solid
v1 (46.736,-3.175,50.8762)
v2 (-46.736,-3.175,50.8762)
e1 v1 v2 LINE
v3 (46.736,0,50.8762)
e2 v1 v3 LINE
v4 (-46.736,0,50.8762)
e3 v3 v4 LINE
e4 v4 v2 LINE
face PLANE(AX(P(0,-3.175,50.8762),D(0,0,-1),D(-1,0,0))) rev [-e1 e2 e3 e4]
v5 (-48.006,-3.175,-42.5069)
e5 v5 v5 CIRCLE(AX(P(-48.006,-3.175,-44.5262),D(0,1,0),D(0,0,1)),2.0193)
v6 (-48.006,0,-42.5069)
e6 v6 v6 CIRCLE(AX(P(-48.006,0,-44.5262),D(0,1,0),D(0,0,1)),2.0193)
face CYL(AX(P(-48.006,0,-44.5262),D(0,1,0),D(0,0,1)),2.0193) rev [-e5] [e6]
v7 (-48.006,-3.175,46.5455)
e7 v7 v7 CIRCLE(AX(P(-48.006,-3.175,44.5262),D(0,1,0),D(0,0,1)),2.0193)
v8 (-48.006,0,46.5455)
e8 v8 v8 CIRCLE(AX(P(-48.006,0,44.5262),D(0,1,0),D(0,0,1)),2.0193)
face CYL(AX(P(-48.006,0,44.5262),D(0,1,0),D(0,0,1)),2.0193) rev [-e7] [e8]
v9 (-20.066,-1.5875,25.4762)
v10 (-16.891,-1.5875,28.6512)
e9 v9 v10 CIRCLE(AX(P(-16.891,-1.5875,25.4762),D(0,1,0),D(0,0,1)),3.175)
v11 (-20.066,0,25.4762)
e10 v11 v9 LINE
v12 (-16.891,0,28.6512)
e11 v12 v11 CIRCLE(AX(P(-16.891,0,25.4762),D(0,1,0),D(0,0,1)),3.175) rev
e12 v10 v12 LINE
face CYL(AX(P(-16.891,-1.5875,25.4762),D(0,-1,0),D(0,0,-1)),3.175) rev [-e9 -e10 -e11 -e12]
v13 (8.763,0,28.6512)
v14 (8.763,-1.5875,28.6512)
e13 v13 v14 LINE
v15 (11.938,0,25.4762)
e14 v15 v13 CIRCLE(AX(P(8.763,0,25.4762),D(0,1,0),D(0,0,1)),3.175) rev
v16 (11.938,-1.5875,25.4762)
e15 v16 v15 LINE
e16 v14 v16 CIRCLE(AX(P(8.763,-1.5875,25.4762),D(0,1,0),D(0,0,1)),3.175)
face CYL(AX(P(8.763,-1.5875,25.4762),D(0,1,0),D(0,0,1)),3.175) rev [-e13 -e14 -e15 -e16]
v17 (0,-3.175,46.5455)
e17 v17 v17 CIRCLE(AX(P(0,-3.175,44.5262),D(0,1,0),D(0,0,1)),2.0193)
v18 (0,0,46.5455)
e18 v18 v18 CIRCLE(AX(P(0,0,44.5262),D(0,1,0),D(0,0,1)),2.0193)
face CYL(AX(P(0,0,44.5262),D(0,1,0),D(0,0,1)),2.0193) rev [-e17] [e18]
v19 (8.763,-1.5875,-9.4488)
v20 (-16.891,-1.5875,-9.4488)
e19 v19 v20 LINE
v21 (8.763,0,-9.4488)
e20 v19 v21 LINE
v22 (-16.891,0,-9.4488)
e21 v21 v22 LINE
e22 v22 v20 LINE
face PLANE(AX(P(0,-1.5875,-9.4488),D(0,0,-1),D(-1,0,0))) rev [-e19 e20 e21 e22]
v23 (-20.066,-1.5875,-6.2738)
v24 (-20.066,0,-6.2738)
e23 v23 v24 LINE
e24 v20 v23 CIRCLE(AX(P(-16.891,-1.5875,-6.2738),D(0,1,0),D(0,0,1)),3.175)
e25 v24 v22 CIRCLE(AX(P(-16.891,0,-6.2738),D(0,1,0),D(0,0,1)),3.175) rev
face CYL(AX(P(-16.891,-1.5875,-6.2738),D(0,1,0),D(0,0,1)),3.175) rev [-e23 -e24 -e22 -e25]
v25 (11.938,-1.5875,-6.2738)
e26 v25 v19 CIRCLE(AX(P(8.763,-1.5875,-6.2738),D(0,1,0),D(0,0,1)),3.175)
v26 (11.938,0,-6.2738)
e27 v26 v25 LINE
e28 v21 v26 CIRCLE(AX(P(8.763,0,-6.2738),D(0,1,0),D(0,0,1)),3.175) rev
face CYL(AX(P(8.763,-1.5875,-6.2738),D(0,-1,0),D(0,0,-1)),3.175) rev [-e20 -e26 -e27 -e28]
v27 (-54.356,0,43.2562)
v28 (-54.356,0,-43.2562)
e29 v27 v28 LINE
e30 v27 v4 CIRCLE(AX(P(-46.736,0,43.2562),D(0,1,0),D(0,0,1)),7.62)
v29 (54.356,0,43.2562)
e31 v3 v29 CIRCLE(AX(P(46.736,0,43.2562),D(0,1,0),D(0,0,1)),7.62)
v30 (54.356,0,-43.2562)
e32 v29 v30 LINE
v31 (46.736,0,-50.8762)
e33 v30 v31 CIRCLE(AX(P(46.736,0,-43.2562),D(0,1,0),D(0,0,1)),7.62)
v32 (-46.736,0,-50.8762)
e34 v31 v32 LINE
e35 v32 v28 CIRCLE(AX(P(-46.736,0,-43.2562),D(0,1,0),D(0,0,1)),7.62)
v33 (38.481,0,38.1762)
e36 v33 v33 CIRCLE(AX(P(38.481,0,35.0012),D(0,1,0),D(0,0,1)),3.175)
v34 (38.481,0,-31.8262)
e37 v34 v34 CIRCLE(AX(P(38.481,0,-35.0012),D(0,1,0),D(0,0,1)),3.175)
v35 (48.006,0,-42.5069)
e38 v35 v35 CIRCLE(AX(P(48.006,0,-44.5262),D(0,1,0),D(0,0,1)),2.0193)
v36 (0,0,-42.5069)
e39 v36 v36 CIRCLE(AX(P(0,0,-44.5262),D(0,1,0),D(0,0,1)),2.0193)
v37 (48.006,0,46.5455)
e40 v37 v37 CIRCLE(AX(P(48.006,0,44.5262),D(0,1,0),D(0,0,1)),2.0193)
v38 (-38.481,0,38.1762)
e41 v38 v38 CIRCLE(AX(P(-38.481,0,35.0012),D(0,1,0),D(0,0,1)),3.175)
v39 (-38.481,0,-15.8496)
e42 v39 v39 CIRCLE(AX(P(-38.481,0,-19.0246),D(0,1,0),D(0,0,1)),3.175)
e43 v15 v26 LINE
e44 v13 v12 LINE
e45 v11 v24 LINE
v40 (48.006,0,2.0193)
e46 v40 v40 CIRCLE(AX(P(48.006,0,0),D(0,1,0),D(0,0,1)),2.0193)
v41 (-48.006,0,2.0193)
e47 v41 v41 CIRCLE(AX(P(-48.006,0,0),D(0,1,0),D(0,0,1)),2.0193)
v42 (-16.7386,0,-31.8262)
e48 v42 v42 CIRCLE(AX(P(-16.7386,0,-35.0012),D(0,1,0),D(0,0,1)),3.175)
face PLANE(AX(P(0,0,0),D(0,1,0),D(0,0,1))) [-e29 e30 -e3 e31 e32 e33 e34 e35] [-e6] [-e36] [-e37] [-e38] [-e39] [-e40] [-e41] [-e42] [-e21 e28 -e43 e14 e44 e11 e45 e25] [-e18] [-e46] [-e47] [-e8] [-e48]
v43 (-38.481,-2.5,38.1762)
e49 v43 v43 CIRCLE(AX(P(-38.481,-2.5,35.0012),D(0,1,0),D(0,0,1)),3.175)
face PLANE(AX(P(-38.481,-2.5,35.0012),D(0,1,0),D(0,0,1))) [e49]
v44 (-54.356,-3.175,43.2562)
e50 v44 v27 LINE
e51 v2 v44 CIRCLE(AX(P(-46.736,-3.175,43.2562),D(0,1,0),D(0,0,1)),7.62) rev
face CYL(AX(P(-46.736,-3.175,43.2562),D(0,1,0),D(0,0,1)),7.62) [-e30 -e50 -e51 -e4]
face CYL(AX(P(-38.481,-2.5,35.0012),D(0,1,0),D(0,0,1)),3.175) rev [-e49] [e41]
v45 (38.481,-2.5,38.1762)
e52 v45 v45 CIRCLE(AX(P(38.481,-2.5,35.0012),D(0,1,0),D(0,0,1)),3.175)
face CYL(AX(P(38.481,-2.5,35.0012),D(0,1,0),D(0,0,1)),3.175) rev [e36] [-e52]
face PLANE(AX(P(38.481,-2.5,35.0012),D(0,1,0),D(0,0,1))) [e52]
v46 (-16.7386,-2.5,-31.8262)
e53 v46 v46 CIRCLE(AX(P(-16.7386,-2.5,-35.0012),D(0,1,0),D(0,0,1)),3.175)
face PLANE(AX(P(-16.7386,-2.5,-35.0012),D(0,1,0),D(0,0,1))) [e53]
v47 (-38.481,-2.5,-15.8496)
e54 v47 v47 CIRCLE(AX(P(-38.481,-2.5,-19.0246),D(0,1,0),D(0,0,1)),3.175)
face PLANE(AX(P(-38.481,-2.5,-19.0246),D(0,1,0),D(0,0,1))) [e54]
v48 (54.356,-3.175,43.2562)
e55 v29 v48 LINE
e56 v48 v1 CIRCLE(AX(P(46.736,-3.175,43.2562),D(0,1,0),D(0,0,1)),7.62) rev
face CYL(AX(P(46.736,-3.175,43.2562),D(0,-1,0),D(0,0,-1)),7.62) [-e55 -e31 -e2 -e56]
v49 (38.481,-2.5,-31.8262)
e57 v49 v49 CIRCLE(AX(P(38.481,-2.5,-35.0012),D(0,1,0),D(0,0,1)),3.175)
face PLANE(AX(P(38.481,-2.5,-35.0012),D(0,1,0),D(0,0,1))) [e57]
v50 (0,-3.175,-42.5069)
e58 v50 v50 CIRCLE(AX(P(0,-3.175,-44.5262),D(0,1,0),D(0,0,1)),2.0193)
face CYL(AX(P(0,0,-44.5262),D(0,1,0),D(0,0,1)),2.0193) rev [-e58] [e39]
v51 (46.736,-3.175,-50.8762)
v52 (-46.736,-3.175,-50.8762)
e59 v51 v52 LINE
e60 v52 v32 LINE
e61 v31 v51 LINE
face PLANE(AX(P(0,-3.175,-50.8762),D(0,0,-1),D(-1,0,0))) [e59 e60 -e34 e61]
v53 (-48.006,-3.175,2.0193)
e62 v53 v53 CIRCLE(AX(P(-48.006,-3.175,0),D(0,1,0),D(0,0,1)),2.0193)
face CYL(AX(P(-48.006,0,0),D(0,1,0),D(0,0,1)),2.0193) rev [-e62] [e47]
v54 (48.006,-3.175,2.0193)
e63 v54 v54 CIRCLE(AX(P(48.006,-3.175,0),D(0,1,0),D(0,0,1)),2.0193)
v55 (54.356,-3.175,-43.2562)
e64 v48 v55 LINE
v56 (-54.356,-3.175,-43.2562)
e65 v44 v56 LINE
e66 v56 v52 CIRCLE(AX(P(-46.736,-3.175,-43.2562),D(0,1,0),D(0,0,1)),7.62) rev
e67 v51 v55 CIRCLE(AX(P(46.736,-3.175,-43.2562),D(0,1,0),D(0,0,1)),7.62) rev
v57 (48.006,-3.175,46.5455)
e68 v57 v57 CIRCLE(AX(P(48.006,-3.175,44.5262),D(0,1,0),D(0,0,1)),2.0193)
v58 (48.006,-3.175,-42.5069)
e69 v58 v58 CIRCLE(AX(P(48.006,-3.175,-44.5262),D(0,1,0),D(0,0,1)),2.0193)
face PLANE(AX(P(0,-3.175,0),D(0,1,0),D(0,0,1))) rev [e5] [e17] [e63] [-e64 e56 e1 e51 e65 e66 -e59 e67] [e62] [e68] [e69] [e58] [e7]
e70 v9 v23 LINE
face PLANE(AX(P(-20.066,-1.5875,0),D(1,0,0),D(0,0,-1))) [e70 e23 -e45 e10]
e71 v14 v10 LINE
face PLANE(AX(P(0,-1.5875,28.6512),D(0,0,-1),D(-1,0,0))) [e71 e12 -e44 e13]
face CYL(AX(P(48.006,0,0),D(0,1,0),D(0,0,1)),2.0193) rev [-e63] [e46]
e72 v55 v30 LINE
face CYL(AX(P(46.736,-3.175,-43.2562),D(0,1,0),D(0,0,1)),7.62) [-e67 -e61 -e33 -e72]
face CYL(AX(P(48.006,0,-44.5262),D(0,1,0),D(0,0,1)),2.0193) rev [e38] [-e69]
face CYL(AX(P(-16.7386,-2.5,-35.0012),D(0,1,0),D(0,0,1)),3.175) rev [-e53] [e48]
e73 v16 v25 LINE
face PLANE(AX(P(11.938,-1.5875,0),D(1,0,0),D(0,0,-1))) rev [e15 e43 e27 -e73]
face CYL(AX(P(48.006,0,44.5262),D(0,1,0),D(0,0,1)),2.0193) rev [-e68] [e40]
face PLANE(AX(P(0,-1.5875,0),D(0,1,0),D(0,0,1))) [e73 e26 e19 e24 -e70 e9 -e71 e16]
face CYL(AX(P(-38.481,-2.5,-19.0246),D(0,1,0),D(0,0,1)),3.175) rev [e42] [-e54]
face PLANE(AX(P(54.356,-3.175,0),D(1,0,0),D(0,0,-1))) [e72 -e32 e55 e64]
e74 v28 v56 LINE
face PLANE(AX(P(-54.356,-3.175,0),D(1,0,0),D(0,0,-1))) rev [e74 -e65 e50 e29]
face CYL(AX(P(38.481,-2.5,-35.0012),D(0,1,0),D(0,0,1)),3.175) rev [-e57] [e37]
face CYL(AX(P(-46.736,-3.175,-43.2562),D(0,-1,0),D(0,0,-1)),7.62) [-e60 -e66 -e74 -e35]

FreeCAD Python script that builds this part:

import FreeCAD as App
import Part
import Sketcher

V = App.Vector
Q = App.Units.Quantity


def edges_at(feature, points):
    """Names of the edges that pass closest to the given points."""
    edges = feature.Shape.Edges
    near = lambda p: min(range(len(edges)), key=lambda i: edges[i].distToShape(Part.Vertex(*p))[0])
    return sorted({f"Edge{near(p) + 1}" for p in points})

doc = App.newDocument("Part")
body = doc.addObject("PartDesign::Body", "Body")

sketch1 = body.newObject("Sketcher::SketchObject", "Sketch")
sketch1.AttachmentSupport = (doc.getObject("XZ_Plane"), [""])
sketch1.MapMode = "FlatFace"
sketch1.addGeometry([
    Part.LineSegment(V(-54, -51, 0), V(-54, 51, 0)),
    Part.LineSegment(V(-54, 51, 0), V(54, 51, 0)),
    Part.LineSegment(V(54, 51, 0), V(54, -51, 0)),
    Part.LineSegment(V(54, -51, 0), V(-54, -51, 0)),
], False)
sketch1.addConstraint([
    Sketcher.Constraint("Coincident", 0, 2, 1, 1),
    Sketcher.Constraint("Coincident", 1, 2, 2, 1),
    Sketcher.Constraint("Coincident", 2, 2, 3, 1),
    Sketcher.Constraint("Coincident", 3, 2, 0, 1),
    Sketcher.Constraint("Vertical", 0),
    Sketcher.Constraint("Horizontal", 1),
    Sketcher.Constraint("Vertical", 2),
    Sketcher.Constraint("Horizontal", 3),
    Sketcher.Constraint("Symmetric", 0, 2, 2, 2, -1, 1),
    Sketcher.Constraint("DistanceX", 1, 1, 1, 2, Q("4.28 in")),
    Sketcher.Constraint("DistanceY", 0, 1, 0, 2, Q("4.006 in")),
])
pad1 = body.newObject("PartDesign::Pad", "Pad")
pad1.Profile = sketch1
pad1.Length = Q("0.125 in")

sketch2 = body.newObject("Sketcher::SketchObject", "Sketch001")
sketch2.AttachmentSupport = (doc.getObject("XZ_Plane"), [""])
sketch2.MapMode = "FlatFace"
sketch2.addGeometry([
    Part.LineSegment(V(-20, -9, 0), V(-20, 29, 0)),
    Part.LineSegment(V(-20, 29, 0), V(12, 29, 0)),
    Part.LineSegment(V(12, 29, 0), V(12, -9, 0)),
    Part.LineSegment(V(12, -9, 0), V(-20, -9, 0)),
], False)
sketch2.addConstraint([
    Sketcher.Constraint("Coincident", 0, 2, 1, 1),
    Sketcher.Constraint("Coincident", 1, 2, 2, 1),
    Sketcher.Constraint("Coincident", 2, 2, 3, 1),
    Sketcher.Constraint("Coincident", 3, 2, 0, 1),
    Sketcher.Constraint("Vertical", 0),
    Sketcher.Constraint("Horizontal", 1),
    Sketcher.Constraint("Vertical", 2),
    Sketcher.Constraint("Horizontal", 3),
    Sketcher.Constraint("DistanceY", 0, 1, 0, 2, Q("1.5 in")),
    Sketcher.Constraint("DistanceX", 1, 1, 1, 2, Q("1.26 in")),
    Sketcher.Constraint("DistanceX", 0, 2, -1, 1, Q("0.79 in")),
    Sketcher.Constraint("DistanceY", -1, 1, 0, 2, Q("1.128 in")),
])
pocket1 = body.newObject("PartDesign::Pocket", "Pocket")
pocket1.Profile = sketch2
pocket1.Length = Q("0.0625 in")
pocket1.Reversed = True

sketch3 = body.newObject("Sketcher::SketchObject", "Sketch002")
sketch3.AttachmentSupport = (doc.getObject("XZ_Plane"), [""])
sketch3.MapMode = "FlatFace"
sketch3.addGeometry([
    Part.Circle(V(-38.5, -19, 0), V(0, 0, 1), 3.2),
    Part.Circle(V(-16.7, -35, 0), V(0, 0, 1), 3.2),
    Part.Circle(V(38.5, -35, 0), V(0, 0, 1), 3.2),
    Part.Circle(V(38.5, 35, 0), V(0, 0, 1), 3.2),
    Part.Circle(V(-38.5, 35, 0), V(0, 0, 1), 3.2),
], False)
sketch3.addConstraint([
    Sketcher.Constraint("Equal", 0, 1),
    Sketcher.Constraint("Equal", 1, 2),
    Sketcher.Constraint("Equal", 2, 3),
    Sketcher.Constraint("Equal", 3, 4),
    Sketcher.Constraint("Symmetric", 2, 3, 4, 3, -1, 1),
    Sketcher.Constraint("Symmetric", 3, 3, 4, 3, -2),
    Sketcher.Constraint("Horizontal", 1, 3, 2, 3),
    Sketcher.Constraint("Vertical", 0, 3, 4, 3),
    Sketcher.Constraint("Diameter", 0, Q("0.25 in")),
    Sketcher.Constraint("DistanceX", 0, 3, 2, 3, Q("3.03 in")),
    Sketcher.Constraint("DistanceY", 0, 3, -1, 1, Q("0.749 in")),
    Sketcher.Constraint("DistanceX", 1, 3, -1, 1, Q("0.659 in")),
    Sketcher.Constraint("DistanceY", 1, 3, -1, 1, Q("1.378 in")),
])
pocket2 = body.newObject("PartDesign::Pocket", "Pocket001")
pocket2.Profile = sketch3
pocket2.Length = 2.5
pocket2.Reversed = True
doc.recompute()

fillet = body.newObject("PartDesign::Fillet", "Fillet")
fillet.Base = (pocket2, edges_at(pocket2, [
    (-54.356, -1.587, 50.876),
    (-54.356, -1.587, -50.876),
    (54.356, -1.587, -50.876),
    (54.356, -1.587, 50.876),
]))
fillet.Radius = Q("0.3 in")

sketch4 = body.newObject("Sketcher::SketchObject", "Sketch003")
sketch4.AttachmentSupport = (doc.getObject("XZ_Plane"), [""])
sketch4.MapMode = "FlatFace"
sketch4.addGeometry([
    Part.Circle(V(-48, -44.5, 0), V(0, 0, 1), 2),
    Part.Circle(V(48, -44.5, 0), V(0, 0, 1), 2),
    Part.Circle(V(48, 44.5, 0), V(0, 0, 1), 2),
    Part.Circle(V(-48, 44.5, 0), V(0, 0, 1), 2),
    Part.Circle(V(0, 44.5, 0), V(0, 0, 1), 2),
    Part.Circle(V(-48, 0, 0), V(0, 0, 1), 2),
    Part.Circle(V(48, 0, 0), V(0, 0, 1), 2),
    Part.Circle(V(0, -44.5, 0), V(0, 0, 1), 2),
], False)
sketch4.addConstraint([
    Sketcher.Constraint("Equal", 0, 1),
    Sketcher.Constraint("Equal", 1, 2),
    Sketcher.Constraint("Equal", 2, 3),
    Sketcher.Constraint("Equal", 3, 4),
    Sketcher.Constraint("Equal", 4, 5),
    Sketcher.Constraint("Equal", 5, 6),
    Sketcher.Constraint("Equal", 6, 7),
    Sketcher.Constraint("Symmetric", 0, 3, 2, 3, -1, 1),
    Sketcher.Constraint("Symmetric", 1, 3, 3, 3, -1, 1),
    Sketcher.Constraint("Symmetric", 5, 3, 6, 3, -1, 1),
    Sketcher.Constraint("Symmetric", 4, 3, 7, 3, -1, 1),
    Sketcher.Constraint("Symmetric", 0, 3, 1, 3, -2),
    Sketcher.Constraint("PointOnObject", 4, 3, -2),
    Sketcher.Constraint("PointOnObject", 5, 3, -1),
    Sketcher.Constraint("Horizontal", 3, 3, 4, 3),
    Sketcher.Constraint("Vertical", 3, 3, 5, 3),
    Sketcher.Constraint("Diameter", 0, Q("0.159 in")),
    Sketcher.Constraint("DistanceX", 0, 3, -1, 1, Q("1.89 in")),
    Sketcher.Constraint("DistanceY", 0, 3, -1, 1, Q("1.753 in")),
])
doc.recompute()
hole = body.newObject("PartDesign::Hole", "Hole")
hole.Profile = sketch4
hole.ThreadType = "None"
hole.Diameter = Q("0.159 in")
hole.DepthType = "ThroughAll"
hole.Reversed = True
doc.recompute()

fillet2 = body.newObject("PartDesign::Fillet", "Fillet001")
fillet2.Base = (hole, edges_at(hole, [
    (-20.066, -0.794, 28.651),
    (-20.066, -0.794, -9.449),
    (11.938, -0.794, -9.449),
    (11.938, -0.794, 28.651),
]))
fillet2.Radius = Q("0.125 in")

doc.recompute()
